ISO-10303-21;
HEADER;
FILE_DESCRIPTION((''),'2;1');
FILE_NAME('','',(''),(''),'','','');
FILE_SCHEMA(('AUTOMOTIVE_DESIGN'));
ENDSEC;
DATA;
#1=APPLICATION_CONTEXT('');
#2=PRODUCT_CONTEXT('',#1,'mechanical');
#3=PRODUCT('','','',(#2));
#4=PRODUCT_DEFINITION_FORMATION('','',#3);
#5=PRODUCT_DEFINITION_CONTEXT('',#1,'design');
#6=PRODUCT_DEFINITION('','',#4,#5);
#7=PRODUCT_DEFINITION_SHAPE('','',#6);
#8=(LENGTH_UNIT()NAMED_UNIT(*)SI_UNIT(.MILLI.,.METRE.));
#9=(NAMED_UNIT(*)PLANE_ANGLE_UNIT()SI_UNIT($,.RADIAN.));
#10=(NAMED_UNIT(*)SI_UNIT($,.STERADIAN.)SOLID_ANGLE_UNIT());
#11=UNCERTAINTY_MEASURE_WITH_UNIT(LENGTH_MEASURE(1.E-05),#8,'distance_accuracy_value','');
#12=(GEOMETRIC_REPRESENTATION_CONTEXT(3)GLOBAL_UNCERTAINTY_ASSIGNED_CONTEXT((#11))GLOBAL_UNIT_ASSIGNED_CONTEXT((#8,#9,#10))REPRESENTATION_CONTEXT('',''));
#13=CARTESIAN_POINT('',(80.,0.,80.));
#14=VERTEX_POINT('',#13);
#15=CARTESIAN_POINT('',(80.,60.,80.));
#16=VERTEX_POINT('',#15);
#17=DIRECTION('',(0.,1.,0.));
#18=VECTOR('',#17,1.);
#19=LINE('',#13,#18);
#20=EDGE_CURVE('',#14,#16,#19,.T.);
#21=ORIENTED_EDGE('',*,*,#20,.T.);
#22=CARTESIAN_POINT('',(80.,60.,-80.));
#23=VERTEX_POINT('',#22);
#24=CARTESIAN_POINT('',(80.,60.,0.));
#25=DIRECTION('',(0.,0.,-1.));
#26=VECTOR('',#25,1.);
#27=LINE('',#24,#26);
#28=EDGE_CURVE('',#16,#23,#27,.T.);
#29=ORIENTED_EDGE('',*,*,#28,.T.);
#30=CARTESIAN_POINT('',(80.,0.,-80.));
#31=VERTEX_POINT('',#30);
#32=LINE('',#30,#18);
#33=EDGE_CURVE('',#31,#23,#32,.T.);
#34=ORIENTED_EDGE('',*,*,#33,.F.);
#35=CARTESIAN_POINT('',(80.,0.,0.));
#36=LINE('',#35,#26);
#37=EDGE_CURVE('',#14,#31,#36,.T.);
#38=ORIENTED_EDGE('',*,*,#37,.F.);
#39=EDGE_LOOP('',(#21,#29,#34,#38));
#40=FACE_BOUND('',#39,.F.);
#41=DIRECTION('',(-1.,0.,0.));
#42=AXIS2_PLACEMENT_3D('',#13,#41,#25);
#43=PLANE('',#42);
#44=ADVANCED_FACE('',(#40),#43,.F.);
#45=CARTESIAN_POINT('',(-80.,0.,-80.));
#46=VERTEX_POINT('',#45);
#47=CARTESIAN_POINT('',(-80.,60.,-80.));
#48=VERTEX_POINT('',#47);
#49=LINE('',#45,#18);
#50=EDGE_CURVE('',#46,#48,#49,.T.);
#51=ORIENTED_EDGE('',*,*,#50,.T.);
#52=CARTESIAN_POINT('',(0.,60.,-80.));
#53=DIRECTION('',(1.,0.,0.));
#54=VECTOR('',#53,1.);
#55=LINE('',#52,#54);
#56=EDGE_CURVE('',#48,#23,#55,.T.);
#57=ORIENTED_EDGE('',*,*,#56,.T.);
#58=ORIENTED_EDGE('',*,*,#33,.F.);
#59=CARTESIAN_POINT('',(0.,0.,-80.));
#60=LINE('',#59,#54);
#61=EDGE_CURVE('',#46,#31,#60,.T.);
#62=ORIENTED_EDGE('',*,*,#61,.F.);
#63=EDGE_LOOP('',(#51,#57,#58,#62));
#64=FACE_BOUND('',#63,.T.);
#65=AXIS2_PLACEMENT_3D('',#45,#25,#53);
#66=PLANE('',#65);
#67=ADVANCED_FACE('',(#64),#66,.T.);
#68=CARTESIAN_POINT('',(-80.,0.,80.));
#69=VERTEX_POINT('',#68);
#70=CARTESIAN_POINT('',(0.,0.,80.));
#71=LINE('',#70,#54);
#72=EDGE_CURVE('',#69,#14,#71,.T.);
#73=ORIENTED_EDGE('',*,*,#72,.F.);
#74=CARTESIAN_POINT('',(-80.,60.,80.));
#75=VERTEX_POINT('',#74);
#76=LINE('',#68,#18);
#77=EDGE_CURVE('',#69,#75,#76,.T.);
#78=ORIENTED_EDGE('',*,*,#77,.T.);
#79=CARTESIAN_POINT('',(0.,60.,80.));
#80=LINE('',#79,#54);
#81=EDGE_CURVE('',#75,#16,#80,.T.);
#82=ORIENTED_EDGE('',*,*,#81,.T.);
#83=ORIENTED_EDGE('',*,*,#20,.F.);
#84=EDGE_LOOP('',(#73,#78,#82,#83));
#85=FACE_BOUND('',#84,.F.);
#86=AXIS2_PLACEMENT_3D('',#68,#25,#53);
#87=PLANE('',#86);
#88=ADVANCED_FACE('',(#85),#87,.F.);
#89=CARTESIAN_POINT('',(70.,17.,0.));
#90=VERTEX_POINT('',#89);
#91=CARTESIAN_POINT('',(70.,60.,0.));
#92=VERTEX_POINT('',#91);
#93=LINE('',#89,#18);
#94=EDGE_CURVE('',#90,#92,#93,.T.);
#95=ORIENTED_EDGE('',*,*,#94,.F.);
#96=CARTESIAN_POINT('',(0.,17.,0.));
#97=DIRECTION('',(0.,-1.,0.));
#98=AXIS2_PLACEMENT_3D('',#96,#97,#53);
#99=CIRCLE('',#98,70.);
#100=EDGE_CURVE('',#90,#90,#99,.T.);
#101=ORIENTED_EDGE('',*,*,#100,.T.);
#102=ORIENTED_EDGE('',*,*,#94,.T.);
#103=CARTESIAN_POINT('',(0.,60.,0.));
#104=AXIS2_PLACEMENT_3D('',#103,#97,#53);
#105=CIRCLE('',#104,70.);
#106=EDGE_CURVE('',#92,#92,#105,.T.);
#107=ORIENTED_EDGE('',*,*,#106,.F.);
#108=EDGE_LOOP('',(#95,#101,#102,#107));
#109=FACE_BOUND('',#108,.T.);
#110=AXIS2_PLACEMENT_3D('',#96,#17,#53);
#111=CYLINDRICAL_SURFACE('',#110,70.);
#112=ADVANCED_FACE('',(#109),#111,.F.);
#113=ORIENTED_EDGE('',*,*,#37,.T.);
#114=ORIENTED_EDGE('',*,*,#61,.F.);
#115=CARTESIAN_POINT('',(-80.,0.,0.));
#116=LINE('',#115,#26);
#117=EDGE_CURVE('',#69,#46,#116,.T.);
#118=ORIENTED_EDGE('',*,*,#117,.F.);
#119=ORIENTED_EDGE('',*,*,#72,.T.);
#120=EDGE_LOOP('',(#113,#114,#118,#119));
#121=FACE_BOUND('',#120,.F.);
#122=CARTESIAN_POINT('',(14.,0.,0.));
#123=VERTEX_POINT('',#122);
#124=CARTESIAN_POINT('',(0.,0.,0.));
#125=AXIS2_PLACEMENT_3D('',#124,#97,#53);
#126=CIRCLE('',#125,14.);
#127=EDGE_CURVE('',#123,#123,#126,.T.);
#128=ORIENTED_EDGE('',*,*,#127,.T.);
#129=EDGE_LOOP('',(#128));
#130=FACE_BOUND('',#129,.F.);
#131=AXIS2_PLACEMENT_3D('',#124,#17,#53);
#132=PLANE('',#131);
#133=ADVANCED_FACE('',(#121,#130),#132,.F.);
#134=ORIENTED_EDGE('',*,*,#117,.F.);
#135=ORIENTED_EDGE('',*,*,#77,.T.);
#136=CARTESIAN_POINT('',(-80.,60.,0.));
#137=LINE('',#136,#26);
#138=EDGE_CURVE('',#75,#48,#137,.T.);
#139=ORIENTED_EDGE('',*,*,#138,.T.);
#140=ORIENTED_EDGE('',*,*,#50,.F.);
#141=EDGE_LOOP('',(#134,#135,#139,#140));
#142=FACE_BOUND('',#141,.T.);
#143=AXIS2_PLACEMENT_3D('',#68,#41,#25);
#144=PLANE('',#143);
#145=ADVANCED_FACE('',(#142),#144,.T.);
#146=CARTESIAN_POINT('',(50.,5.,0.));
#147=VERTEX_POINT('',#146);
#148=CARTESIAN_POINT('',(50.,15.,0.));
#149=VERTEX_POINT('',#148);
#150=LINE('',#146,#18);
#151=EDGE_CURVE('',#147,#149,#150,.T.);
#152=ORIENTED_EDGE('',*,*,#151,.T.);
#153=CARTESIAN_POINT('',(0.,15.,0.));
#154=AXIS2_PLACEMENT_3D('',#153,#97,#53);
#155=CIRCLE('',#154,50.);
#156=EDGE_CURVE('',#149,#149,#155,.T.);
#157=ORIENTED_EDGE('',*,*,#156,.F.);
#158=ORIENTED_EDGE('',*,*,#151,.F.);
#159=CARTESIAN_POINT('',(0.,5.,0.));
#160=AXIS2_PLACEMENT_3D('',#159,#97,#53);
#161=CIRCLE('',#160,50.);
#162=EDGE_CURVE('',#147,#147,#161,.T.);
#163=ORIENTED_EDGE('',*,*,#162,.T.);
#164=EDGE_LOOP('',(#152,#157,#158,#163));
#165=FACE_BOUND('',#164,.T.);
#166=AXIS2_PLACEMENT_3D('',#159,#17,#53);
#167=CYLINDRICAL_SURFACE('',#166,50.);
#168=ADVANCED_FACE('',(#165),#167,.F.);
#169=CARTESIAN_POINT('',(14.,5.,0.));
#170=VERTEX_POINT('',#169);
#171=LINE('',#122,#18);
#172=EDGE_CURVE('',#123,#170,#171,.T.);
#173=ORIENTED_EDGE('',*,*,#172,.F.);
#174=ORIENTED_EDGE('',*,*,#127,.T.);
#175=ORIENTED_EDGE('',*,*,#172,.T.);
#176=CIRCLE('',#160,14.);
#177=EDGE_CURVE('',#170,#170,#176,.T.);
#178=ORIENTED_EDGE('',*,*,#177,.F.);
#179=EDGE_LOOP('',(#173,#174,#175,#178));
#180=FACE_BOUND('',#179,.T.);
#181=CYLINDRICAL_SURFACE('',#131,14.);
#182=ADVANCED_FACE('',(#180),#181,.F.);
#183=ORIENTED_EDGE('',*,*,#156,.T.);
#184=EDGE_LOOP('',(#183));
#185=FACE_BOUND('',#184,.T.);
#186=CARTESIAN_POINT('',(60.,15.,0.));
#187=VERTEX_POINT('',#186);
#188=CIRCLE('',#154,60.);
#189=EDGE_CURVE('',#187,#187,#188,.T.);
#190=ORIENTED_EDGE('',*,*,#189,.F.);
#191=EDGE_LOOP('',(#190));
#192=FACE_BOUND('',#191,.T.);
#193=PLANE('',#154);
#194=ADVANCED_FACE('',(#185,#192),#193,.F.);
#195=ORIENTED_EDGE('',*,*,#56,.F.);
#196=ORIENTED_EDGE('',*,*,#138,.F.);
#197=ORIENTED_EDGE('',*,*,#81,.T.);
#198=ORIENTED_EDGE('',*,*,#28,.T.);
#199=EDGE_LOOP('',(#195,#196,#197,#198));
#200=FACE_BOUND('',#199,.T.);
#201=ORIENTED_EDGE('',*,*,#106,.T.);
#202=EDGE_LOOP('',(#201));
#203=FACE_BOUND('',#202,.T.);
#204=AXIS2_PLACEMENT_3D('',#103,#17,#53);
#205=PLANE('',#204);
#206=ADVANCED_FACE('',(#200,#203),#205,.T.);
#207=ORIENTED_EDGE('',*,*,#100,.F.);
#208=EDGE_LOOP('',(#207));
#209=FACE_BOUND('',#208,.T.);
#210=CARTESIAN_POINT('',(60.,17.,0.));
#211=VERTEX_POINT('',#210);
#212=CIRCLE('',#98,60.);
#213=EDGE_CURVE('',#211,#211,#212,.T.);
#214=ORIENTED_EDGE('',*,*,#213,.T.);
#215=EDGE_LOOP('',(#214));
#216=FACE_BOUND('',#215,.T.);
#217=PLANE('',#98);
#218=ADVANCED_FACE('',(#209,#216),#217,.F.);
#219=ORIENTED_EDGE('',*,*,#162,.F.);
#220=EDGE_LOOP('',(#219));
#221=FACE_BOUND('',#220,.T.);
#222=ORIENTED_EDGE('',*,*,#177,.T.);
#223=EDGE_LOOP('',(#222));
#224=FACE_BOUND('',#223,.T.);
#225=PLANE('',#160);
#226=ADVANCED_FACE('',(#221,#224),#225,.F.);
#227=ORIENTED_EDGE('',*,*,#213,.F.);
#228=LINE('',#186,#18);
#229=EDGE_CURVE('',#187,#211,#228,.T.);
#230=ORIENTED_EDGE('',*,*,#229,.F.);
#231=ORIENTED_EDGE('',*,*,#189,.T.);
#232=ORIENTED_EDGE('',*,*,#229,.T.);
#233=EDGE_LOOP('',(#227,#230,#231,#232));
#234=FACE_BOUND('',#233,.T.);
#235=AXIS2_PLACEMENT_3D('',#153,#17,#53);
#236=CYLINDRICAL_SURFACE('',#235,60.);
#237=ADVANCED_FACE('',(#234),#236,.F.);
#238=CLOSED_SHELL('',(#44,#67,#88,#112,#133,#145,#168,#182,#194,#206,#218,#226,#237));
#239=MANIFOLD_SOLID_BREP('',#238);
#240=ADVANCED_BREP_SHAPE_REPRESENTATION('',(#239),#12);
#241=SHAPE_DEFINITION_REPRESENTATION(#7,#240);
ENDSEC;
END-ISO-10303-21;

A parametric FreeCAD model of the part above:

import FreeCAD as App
import Part
import Sketcher
from FreeCAD import Vector
Q = App.Units.Quantity

doc = App.newDocument("Part")
body = doc.addObject("PartDesign::Body", "Body")

# Sketch on XZ plane
sketch1 = body.newObject("Sketcher::SketchObject", "Sketch")
sketch1.AttachmentSupport = (doc.getObject("XZ_Plane"), [""])
sketch1.MapMode = "FlatFace"
sketch1.addGeometry([
    Part.LineSegment(Vector(-80, -80, 0), Vector(-80, 80, 0)),
    Part.LineSegment(Vector(-80, 80, 0), Vector(80, 80, 0)),
    Part.LineSegment(Vector(80, 80, 0), Vector(80, -80, 0)),
    Part.LineSegment(Vector(80, -80, 0), Vector(-80, -80, 0)),
], False)
sketch1.addConstraint([
    Sketcher.Constraint("Coincident", 0, 2, 1, 1),
    Sketcher.Constraint("Coincident", 1, 2, 2, 1),
    Sketcher.Constraint("Coincident", 2, 2, 3, 1),
    Sketcher.Constraint("Coincident", 3, 2, 0, 1),
    Sketcher.Constraint("Vertical", 0),
    Sketcher.Constraint("Horizontal", 1),
    Sketcher.Constraint("Vertical", 2),
    Sketcher.Constraint("Horizontal", 3),
    Sketcher.Constraint("Symmetric", 0, 2, 2, 2, -1, 1),
    Sketcher.Constraint("Equal", 3, 0),
    Sketcher.Constraint("DistanceX", 1, 1, 1, 2, Q("160 mm")),
])
pad1 = body.newObject("PartDesign::Pad", "Pad")
pad1.Profile = sketch1
pad1.Length = 60
pad1.Reversed = True

# Sketch on XY plane
sketch2 = body.newObject("Sketcher::SketchObject", "Sketch001")
sketch2.AttachmentSupport = (doc.getObject("XY_Plane"), [""])
sketch2.MapMode = "FlatFace"
sketch2.addGeometry([
    Part.LineSegment(Vector(0, 0, 0), Vector(14, 0, 0)),  # 0
    Part.LineSegment(Vector(14, 0, 0), Vector(14, 5, 0)),  # 1
    Part.LineSegment(Vector(14, 5, 0), Vector(50, 5, 0)),  # 2
    Part.LineSegment(Vector(50, 5, 0), Vector(50, 15, 0)),  # 3
    Part.LineSegment(Vector(50, 15, 0), Vector(60, 15, 0)),  # 4
    Part.LineSegment(Vector(60, 15, 0), Vector(60, 17, 0)),  # 5
    Part.LineSegment(Vector(60, 17, 0), Vector(70, 17, 0)),  # 6
    Part.LineSegment(Vector(70, 17, 0), Vector(70, 60, 0)),  # 7
    Part.LineSegment(Vector(70, 60, 0), Vector(0, 60, 0)),  # 8
    Part.LineSegment(Vector(0, 60, 0), Vector(0, 0, 0)),  # 9
], False)
sketch2.addConstraint([
    Sketcher.Constraint("Coincident", 0, 2, 1, 1),
    Sketcher.Constraint("Coincident", 1, 2, 2, 1),
    Sketcher.Constraint("Coincident", 2, 2, 3, 1),
    Sketcher.Constraint("Coincident", 3, 2, 4, 1),
    Sketcher.Constraint("Coincident", 4, 2, 5, 1),
    Sketcher.Constraint("Coincident", 5, 2, 6, 1),
    Sketcher.Constraint("Coincident", 6, 2, 7, 1),
    Sketcher.Constraint("Coincident", 7, 2, 8, 1),
    Sketcher.Constraint("Coincident", 8, 2, 9, 1),
    Sketcher.Constraint("Coincident", 9, 2, 0, 1),
    Sketcher.Constraint("Horizontal", 0),
    Sketcher.Constraint("Vertical", 1),
    Sketcher.Constraint("Horizontal", 2),
    Sketcher.Constraint("Vertical", 3),
    Sketcher.Constraint("Horizontal", 4),
    Sketcher.Constraint("Vertical", 5),
    Sketcher.Constraint("Horizontal", 6),
    Sketcher.Constraint("Vertical", 7),
    Sketcher.Constraint("Horizontal", 8),
    Sketcher.Constraint("Vertical", 9),
    Sketcher.Constraint("Coincident", 9, 2, -1, 1),
    Sketcher.Constraint("Equal", 4, 6),
    Sketcher.Constraint("Equal", 6, 3),
    Sketcher.Constraint("DistanceX", 0, 1, 0, 2, Q("14 mm")),
    Sketcher.Constraint("DistanceX", 2, 1, 2, 2, Q("36 mm")),
    Sketcher.Constraint("DistanceX", 4, 1, 4, 2, Q("10 mm")),
    Sketcher.Constraint("DistanceY", 1, 1, 1, 2, Q("5 mm")),
    Sketcher.Constraint("DistanceY", 5, 1, 5, 2, Q("2 mm")),
    Sketcher.Constraint("DistanceY", 7, 1, 7, 2, Q("43 mm")),
])
groove = body.newObject("PartDesign::Groove", "Groove")
groove.Profile = sketch2
groove.ReferenceAxis = (sketch2, ["V_Axis"])
groove.Angle = 360

doc.recompute()
